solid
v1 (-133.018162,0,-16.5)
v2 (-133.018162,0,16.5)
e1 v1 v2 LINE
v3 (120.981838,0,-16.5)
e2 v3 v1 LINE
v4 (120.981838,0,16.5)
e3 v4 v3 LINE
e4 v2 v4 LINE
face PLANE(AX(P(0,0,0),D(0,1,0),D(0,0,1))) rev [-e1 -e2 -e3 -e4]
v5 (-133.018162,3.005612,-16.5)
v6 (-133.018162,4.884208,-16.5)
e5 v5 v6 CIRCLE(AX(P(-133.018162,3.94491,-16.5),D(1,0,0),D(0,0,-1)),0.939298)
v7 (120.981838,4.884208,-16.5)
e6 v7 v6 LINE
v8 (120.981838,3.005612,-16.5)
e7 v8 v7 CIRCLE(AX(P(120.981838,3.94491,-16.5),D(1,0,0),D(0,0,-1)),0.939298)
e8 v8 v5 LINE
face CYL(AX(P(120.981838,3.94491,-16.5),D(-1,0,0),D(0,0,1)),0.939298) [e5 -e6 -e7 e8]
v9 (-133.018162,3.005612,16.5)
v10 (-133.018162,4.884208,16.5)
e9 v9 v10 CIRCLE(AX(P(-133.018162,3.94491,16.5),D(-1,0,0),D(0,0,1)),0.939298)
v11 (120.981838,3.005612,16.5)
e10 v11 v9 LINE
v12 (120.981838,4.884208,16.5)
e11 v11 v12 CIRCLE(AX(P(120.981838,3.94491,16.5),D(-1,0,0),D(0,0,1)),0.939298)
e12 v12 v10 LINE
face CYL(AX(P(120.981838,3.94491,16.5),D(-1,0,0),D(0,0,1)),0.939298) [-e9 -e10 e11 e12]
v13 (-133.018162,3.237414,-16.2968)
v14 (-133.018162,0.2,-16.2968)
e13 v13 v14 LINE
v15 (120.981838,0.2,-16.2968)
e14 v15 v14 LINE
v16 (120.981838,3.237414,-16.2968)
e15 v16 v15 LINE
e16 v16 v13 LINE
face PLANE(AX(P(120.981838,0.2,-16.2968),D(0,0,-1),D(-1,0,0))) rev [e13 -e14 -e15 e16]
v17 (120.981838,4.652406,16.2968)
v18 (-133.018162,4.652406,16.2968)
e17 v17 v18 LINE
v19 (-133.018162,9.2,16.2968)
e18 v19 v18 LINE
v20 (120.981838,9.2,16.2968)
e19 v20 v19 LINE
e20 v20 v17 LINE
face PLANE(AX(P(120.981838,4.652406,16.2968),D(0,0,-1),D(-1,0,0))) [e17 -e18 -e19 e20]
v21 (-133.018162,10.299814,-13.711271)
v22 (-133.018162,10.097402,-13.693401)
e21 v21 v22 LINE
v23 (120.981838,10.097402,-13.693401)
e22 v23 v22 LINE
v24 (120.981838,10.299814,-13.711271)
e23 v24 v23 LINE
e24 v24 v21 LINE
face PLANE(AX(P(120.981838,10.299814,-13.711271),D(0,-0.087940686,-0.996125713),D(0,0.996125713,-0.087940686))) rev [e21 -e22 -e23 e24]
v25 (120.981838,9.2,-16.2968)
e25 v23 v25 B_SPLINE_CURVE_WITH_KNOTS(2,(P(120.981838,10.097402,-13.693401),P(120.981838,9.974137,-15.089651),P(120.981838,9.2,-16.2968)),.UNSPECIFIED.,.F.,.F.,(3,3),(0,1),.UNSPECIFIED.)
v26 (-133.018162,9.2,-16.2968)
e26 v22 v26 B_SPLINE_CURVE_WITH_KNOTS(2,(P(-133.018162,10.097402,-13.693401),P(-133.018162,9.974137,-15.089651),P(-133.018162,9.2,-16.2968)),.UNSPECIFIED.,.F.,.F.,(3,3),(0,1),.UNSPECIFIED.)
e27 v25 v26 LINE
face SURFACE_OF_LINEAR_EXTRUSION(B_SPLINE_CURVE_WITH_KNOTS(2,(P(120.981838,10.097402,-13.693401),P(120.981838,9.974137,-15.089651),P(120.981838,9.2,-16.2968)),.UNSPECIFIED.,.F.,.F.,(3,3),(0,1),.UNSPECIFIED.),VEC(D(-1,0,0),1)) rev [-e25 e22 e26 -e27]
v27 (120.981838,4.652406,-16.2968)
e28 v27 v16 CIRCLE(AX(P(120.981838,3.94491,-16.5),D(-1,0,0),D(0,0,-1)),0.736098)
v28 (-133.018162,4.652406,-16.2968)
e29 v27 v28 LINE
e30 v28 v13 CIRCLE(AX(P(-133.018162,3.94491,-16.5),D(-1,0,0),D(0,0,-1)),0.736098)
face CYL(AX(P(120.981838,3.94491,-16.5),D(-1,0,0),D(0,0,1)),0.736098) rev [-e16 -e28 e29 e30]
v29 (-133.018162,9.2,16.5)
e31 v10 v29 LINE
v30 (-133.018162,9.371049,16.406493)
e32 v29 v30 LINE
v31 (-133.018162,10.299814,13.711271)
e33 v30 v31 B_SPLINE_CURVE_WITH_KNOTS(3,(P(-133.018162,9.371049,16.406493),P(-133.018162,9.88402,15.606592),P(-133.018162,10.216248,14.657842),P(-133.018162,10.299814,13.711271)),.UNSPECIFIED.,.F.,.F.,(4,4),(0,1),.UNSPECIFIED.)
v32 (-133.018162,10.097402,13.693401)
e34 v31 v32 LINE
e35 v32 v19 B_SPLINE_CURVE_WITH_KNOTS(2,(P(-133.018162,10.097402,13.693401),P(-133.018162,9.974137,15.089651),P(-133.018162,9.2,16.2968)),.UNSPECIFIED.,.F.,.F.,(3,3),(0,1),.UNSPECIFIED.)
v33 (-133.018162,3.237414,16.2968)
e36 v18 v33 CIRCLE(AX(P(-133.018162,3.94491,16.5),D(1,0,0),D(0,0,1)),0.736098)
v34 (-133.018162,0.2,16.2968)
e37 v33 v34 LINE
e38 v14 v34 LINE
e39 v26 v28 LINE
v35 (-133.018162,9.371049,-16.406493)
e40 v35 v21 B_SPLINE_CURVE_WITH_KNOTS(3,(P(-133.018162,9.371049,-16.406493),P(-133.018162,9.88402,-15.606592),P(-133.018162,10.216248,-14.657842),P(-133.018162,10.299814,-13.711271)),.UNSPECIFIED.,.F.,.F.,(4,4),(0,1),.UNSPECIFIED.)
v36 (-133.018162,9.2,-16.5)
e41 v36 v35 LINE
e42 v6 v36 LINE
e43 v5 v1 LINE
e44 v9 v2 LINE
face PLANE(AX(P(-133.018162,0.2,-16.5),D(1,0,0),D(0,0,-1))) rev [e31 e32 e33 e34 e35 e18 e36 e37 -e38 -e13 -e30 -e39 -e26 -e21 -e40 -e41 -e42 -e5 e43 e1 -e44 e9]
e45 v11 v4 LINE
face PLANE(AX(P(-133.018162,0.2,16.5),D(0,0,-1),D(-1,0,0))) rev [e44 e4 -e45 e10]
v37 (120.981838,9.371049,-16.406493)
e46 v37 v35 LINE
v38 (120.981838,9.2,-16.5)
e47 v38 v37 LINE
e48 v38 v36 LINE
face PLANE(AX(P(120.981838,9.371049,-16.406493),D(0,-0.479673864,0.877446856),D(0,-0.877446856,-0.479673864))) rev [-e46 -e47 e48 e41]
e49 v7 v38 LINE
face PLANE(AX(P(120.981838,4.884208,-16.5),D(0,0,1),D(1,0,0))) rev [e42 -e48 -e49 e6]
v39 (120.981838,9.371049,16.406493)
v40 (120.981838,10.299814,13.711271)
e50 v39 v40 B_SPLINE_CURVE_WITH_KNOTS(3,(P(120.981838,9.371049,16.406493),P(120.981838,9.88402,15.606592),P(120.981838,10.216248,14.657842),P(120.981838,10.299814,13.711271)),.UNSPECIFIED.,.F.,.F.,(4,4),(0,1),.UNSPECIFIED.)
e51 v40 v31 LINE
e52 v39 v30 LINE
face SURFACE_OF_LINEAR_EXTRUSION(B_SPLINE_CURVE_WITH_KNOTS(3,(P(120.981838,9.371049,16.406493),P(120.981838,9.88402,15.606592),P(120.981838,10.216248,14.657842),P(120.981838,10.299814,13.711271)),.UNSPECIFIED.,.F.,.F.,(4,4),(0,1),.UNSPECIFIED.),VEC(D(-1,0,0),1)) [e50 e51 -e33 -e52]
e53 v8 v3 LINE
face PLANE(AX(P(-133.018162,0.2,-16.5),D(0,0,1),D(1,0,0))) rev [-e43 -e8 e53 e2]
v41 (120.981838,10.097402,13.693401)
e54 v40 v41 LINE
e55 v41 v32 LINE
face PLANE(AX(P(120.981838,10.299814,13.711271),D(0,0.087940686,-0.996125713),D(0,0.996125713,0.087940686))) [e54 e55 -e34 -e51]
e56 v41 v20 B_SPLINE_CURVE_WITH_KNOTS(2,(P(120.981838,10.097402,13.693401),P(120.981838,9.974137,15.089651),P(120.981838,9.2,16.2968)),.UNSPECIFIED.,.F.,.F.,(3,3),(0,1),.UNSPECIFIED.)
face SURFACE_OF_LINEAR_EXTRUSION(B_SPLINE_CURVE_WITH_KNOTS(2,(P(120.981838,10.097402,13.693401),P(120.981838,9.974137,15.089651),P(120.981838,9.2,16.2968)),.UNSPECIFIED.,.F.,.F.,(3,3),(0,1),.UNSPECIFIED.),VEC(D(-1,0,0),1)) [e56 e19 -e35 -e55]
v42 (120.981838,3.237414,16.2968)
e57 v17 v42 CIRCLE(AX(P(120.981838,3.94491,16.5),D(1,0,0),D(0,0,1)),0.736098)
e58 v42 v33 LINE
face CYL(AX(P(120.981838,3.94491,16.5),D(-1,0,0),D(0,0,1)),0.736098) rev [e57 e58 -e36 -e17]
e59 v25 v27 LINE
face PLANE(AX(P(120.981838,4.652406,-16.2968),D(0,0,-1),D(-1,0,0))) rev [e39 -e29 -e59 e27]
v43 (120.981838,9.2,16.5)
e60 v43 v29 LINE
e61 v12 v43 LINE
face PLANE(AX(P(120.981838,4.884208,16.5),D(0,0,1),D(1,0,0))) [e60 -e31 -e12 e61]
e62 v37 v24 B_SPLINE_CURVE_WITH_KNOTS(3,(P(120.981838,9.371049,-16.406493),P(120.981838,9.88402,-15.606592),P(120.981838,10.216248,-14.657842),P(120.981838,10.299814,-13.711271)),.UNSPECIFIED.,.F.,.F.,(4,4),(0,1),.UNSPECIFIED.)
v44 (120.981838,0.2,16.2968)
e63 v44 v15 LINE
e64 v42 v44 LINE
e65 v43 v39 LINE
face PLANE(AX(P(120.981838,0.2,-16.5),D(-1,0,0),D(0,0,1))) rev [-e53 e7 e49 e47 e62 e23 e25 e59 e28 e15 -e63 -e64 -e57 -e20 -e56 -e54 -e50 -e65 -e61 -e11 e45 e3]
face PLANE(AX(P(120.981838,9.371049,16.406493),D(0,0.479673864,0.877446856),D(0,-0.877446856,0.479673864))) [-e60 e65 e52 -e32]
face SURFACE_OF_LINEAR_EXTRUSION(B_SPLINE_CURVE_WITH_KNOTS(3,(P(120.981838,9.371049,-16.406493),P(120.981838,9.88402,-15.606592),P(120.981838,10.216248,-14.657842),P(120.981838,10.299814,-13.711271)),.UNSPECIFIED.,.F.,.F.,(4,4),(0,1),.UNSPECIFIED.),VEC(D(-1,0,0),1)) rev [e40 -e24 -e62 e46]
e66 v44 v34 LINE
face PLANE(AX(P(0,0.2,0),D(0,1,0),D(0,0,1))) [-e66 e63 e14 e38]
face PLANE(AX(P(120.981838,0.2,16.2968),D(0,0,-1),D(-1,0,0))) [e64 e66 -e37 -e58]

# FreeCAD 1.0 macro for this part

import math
import FreeCAD as App
import Part
import Sketcher


def add_polygon(sketch, points):
    """Adds a closed chain of lines whose ends are joined by coincident constraints."""
    first, n = sketch.GeometryCount, len(points)
    for a, b in zip(points, points[1:] + points[:1]):
        sketch.addGeometry(Part.LineSegment(App.Vector(*a, 0), App.Vector(*b, 0)), False)
    for i in range(n):
        sketch.addConstraint(Sketcher.Constraint("Coincident", first + i, 2, first + (i + 1) % n, 1))

doc = App.newDocument("Part")
body = doc.addObject("PartDesign::Body", "Body")

# Sketch on XZ plane
sketch1 = body.newObject("Sketcher::SketchObject", "Sketch")
sketch1.AttachmentSupport = (doc.getObject("XZ_Plane"), [""])
sketch1.MapMode = "FlatFace"
add_polygon(sketch1, [(-133, -16), (-133, 16), (121, 16), (121, -16)])  # lines 0-3
sketch1.addConstraint([
    Sketcher.Constraint("Vertical", 0),
    Sketcher.Constraint("Horizontal", 1),
    Sketcher.Constraint("Vertical", 2),
    Sketcher.Constraint("Horizontal", 3),
    Sketcher.Constraint("DistanceX", 1, 1, 1, 2, 254.0),
    Sketcher.Constraint("DistanceY", 0, 1, 0, 2, 33.0),
    Sketcher.Constraint("DistanceY", -1, 1, 0, 2, 16.5),
    Sketcher.Constraint("DistanceX", 0, 2, -1, 1, 133.018162),
])
pad1 = body.newObject("PartDesign::Pad", "Pad")
pad1.Profile = sketch1
pad1.Length = 0.2
pad1.Reversed = True

# Sketch on YZ plane
sketch2 = body.newObject("Sketcher::SketchObject", "Sketch001")
sketch2.AttachmentSupport = (doc.getObject("YZ_Plane"), [""])
sketch2.MapMode = "FlatFace"
sketch2.AttachmentOffset = App.Placement(App.Vector(0, 0, -133.018162), App.Rotation())
sketch2.addGeometry([
    Part.LineSegment(App.Vector(0.2, -16.5, 0), App.Vector(3.005612, -16.5, 0)),  # 0
    Part.ArcOfCircle(Part.Circle(App.Vector(3.94491, -16.5, 0), App.Vector(0, 0, 1), 0.939298), math.radians(180), math.radians(360)),  # 1
    Part.LineSegment(App.Vector(4.884208, -16.5, 0), App.Vector(9.2, -16.5, 0)),  # 2
    Part.LineSegment(App.Vector(9.2, -16.5, 0), App.Vector(9.371049, -16.406493, 0)),  # 3
    Part.BSplineCurve([App.Vector(9.371049, -16.406493, 0), App.Vector(9.88402, -15.606592, 0), App.Vector(10.216248, -14.657842, 0), App.Vector(10.299814, -13.711271, 0)], [4, 4], [0, 1], False, 3, [1, 1, 1, 1], False),  # 4
    Part.LineSegment(App.Vector(10.299814, -13.711271, 0), App.Vector(10.097402, -13.693401, 0)),  # 5
    Part.BSplineCurve([App.Vector(9.2, -16.2968, 0), App.Vector(9.974137, -15.089651, 0), App.Vector(10.097402, -13.693401, 0)], [3, 3], [0, 1], False, 2, [1, 1, 1], False),  # 6
    Part.LineSegment(App.Vector(9.2, -16.2968, 0), App.Vector(4.652406, -16.2968, 0)),  # 7
    Part.ArcOfCircle(Part.Circle(App.Vector(3.94491, -16.5, 0), App.Vector(0, 0, 1), 0.736098), math.radians(163.975392), math.radians(376.024608)),  # 8
    Part.LineSegment(App.Vector(3.237414, -16.2968, 0), App.Vector(0.2, -16.2968, 0)),  # 9
    Part.LineSegment(App.Vector(0.2, -16.2968, 0), App.Vector(0.2, -16.5, 0)),  # 10
], False)
sketch2.addConstraint([
    Sketcher.Constraint("Block", 4),
    Sketcher.Constraint("Block", 6),
    Sketcher.Constraint("Coincident", 0, 2, 1, 1),
    Sketcher.Constraint("Coincident", 1, 2, 2, 1),
    Sketcher.Constraint("Coincident", 2, 2, 3, 1),
    Sketcher.Constraint("Coincident", 3, 2, 4, 1),
    Sketcher.Constraint("Coincident", 4, 2, 5, 1),
    Sketcher.Constraint("Coincident", 5, 2, 6, 2),
    Sketcher.Constraint("Coincident", 6, 1, 7, 1),
    Sketcher.Constraint("Coincident", 7, 2, 8, 2),
    Sketcher.Constraint("Coincident", 8, 1, 9, 1),
    Sketcher.Constraint("Coincident", 9, 2, 10, 1),
    Sketcher.Constraint("Coincident", 10, 2, 0, 1),
    Sketcher.Constraint("Horizontal", 0),
    Sketcher.Constraint("Horizontal", 2),
    Sketcher.Constraint("Horizontal", 7),
    Sketcher.Constraint("Horizontal", 9),
    Sketcher.Constraint("Vertical", 10),
    Sketcher.Constraint("Coincident", 8, 3, 1, 3),
    Sketcher.Constraint("Horizontal", 8, 3, 0, 2),
    Sketcher.Constraint("Horizontal", 0, 2, 1, 2),
    Sketcher.Constraint("Horizontal", 7, 2, 8, 1),
    Sketcher.Constraint("DistanceY", 1, 3, -1, 1, 16.5),
    Sketcher.Constraint("DistanceX", -1, 1, 2, 2, 9.2),
    Sketcher.Constraint("DistanceX", -1, 1, 9, 2, 0.2),
    Sketcher.Constraint("Radius", 1, 0.939298),
    Sketcher.Constraint("Radius", 8, 0.736098),
    Sketcher.Constraint("DistanceX", 0, 1, 0, 2, 2.805612),
])
pad2 = body.newObject("PartDesign::Pad", "Pad001")
pad2.Profile = sketch2
pad2.Length = 254
doc.recompute()

mirrored = body.newObject("PartDesign::Mirrored", "Mirrored")
mirrored.Originals = [pad2]
mirrored.MirrorPlane = (doc.getObject("XY_Plane"), [""])
body.Tip = mirrored

doc.recompute()
